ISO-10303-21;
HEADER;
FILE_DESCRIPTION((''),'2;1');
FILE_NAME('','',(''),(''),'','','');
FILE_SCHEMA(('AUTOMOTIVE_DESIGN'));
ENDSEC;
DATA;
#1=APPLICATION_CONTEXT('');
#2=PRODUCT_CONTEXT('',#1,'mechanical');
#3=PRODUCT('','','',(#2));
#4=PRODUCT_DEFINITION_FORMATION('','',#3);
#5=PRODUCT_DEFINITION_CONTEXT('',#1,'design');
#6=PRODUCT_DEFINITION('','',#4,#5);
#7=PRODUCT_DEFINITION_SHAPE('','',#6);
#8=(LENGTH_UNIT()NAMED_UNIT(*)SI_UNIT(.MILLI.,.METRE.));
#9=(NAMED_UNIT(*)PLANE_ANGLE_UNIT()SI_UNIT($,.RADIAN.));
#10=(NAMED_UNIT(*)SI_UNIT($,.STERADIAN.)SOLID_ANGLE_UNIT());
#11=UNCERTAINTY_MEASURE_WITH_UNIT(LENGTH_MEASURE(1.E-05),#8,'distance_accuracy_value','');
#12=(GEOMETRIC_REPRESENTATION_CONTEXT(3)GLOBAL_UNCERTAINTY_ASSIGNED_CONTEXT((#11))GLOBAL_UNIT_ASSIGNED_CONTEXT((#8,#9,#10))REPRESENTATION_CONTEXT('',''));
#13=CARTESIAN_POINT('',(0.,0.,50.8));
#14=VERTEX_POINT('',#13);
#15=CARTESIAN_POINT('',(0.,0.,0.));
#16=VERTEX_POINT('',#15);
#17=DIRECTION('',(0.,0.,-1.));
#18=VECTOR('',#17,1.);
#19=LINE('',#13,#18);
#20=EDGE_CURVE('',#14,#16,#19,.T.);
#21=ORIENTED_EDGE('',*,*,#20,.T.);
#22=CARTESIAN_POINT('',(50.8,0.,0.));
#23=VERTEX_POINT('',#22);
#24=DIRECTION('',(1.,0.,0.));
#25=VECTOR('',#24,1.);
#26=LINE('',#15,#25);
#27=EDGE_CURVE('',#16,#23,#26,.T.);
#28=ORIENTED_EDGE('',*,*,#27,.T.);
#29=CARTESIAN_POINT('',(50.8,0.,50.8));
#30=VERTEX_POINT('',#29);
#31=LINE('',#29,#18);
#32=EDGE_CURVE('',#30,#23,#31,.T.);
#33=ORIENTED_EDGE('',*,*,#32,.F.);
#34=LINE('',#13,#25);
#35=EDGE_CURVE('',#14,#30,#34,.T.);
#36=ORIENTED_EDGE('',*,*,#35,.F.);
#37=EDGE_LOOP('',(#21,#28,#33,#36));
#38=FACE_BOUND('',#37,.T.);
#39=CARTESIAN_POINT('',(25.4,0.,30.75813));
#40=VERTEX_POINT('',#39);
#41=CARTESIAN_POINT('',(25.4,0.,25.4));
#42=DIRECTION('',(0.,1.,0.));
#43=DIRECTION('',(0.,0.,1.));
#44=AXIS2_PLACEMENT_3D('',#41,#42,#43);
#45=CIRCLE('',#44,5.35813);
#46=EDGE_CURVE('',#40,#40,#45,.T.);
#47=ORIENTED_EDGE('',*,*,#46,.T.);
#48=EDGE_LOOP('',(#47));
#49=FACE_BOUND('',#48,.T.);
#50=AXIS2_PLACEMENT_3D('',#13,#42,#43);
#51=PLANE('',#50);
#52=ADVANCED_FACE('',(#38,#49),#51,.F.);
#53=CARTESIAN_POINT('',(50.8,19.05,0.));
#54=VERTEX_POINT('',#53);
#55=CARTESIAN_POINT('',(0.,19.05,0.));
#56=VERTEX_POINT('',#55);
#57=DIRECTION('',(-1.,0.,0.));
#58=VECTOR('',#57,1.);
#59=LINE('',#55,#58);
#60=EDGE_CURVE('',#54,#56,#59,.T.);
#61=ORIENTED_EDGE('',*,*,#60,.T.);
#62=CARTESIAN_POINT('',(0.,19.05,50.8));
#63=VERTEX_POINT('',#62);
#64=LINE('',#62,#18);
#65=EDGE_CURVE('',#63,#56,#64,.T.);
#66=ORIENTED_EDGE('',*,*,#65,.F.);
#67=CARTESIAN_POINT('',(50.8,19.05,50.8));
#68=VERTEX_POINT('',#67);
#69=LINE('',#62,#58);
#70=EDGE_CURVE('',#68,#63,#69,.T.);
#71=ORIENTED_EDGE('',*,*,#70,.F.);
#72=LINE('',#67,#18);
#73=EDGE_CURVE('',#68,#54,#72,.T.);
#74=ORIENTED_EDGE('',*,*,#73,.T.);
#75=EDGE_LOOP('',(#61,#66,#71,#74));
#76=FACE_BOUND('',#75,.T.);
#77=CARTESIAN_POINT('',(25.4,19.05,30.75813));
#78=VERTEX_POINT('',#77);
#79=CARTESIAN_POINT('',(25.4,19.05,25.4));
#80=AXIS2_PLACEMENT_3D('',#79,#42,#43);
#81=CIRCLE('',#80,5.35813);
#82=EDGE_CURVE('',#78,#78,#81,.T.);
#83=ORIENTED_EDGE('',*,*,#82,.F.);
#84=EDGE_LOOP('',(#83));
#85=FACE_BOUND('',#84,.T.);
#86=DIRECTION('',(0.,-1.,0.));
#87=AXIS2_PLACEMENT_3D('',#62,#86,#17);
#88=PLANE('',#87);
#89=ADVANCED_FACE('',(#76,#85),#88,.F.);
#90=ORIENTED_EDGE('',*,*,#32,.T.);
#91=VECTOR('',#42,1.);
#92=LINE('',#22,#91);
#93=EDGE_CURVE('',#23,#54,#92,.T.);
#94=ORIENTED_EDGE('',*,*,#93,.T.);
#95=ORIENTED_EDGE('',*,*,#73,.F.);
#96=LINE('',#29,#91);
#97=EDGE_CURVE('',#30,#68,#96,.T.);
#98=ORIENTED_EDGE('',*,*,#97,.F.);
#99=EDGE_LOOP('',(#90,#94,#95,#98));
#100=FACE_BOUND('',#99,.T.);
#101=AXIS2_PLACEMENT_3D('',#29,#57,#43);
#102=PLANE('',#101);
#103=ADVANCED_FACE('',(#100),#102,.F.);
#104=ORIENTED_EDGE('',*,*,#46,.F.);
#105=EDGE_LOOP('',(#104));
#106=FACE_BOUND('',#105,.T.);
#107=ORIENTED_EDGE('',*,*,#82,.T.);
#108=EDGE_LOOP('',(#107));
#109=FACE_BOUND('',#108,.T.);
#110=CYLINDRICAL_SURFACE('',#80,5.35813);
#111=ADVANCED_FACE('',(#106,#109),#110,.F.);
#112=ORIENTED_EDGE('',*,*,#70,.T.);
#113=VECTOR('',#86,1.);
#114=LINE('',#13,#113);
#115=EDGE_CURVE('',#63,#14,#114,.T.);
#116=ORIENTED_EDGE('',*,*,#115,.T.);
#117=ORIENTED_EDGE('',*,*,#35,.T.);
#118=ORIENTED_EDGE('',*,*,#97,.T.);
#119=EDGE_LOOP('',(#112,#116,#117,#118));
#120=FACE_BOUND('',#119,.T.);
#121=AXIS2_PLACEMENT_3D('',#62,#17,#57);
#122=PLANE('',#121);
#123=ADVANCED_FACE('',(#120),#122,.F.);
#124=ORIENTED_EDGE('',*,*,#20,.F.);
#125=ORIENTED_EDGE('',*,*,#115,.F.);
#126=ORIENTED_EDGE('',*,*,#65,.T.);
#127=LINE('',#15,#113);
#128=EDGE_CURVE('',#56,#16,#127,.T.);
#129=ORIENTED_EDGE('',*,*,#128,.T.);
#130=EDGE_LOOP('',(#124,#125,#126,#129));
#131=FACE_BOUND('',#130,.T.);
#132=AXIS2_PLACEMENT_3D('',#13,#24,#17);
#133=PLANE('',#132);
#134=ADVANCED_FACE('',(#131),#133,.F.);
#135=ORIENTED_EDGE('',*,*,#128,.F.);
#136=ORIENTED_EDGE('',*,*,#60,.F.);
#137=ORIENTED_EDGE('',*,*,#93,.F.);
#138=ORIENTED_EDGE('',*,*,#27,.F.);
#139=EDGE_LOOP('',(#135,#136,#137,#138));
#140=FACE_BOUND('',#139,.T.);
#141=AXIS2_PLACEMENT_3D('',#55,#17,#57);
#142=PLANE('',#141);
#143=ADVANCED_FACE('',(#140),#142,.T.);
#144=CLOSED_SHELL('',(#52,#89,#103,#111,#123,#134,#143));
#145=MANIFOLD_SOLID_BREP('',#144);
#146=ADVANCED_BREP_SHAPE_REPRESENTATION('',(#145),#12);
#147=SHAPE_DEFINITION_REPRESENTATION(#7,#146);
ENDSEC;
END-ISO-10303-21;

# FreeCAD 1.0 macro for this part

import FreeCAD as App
import Part
import Sketcher
from FreeCAD import Vector
Q = App.Units.Quantity


def add_polygon(sketch, points):
    """Adds a closed chain of lines whose ends are joined by coincident constraints."""
    first, n = sketch.GeometryCount, len(points)
    for a, b in zip(points, points[1:] + points[:1]):
        sketch.addGeometry(Part.LineSegment(App.Vector(*a, 0), App.Vector(*b, 0)), False)
    for i in range(n):
        sketch.addConstraint(Sketcher.Constraint("Coincident", first + i, 2, first + (i + 1) % n, 1))

doc = App.newDocument("Part")
body = doc.addObject("PartDesign::Body", "Body")

# Sketch on XY plane
sketch1 = body.newObject("Sketcher::SketchObject", "Sketch")
sketch1.AttachmentSupport = (doc.getObject("XY_Plane"), [""])
sketch1.MapMode = "FlatFace"
add_polygon(sketch1, [(0, 19.05), (0, 0), (50.8, 0), (50.8, 19.05)])  # lines 0-3
sketch1.addConstraint([
    Sketcher.Constraint("Vertical", 0),
    Sketcher.Constraint("Horizontal", 1),
    Sketcher.Constraint("Vertical", 2),
    Sketcher.Constraint("Horizontal", 3),
    Sketcher.Constraint("Coincident", 0, 2, -1, 1),
    Sketcher.Constraint("DistanceX", 1, 1, 1, 2, Q("2 in")),
    Sketcher.Constraint("DistanceY", 0, 2, 0, 1, Q("0.75 in")),
])
pad1 = body.newObject("PartDesign::Pad", "Pad")
pad1.Profile = sketch1
pad1.Length = Q("2 in")

# Sketch on XZ plane
sketch2 = body.newObject("Sketcher::SketchObject", "Sketch001")
sketch2.AttachmentSupport = (doc.getObject("XZ_Plane"), [""])
sketch2.MapMode = "FlatFace"
sketch2.AttachmentOffset = App.Placement(Vector(0, 0, -0.75 * 25.4), App.Rotation())
sketch2.addGeometry(Part.Circle(Vector(25.4, 25.4, 0), Vector(0, 0, 1), 5.35813), False)
sketch2.addConstraint([
    Sketcher.Constraint("DistanceX", -1, 1, 0, 3, Q("1 in")),
    Sketcher.Constraint("DistanceY", -1, 1, 0, 3, Q("1 in")),
    Sketcher.Constraint("Diameter", 0, Q("0.4219 in")),
])
doc.recompute()
hole = body.newObject("PartDesign::Hole", "Hole")
hole.Profile = sketch2
hole.ThreadType = "None"
hole.Diameter = Q("0.4219 in")
hole.DepthType = "ThroughAll"
hole.Reversed = True

doc.recompute()
